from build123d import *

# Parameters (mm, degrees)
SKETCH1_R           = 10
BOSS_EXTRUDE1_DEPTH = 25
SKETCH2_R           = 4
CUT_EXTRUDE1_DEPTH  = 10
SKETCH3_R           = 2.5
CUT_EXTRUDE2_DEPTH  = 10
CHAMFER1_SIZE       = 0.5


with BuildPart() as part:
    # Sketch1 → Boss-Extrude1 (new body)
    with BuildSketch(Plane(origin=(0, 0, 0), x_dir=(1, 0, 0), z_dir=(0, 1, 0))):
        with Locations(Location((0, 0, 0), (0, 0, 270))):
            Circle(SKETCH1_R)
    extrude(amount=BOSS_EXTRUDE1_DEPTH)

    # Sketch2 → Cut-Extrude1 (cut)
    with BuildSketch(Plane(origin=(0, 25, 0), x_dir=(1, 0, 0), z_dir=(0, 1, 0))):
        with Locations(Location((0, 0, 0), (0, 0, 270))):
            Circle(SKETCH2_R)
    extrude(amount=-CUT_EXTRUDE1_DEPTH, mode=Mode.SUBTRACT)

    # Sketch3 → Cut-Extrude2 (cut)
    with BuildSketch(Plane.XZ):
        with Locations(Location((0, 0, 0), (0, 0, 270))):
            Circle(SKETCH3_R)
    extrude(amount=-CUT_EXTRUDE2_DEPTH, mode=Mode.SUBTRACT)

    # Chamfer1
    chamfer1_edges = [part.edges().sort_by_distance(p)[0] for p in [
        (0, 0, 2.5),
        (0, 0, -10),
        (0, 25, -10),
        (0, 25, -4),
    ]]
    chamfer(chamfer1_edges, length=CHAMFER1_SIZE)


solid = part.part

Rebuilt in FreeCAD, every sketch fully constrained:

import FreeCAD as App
import Part
import Sketcher

V = App.Vector
Q = App.Units.Quantity


def edges_at(feature, points):
    """Names of the edges that pass closest to the given points."""
    edges = feature.Shape.Edges
    near = lambda p: min(range(len(edges)), key=lambda i: edges[i].distToShape(Part.Vertex(*p))[0])
    return sorted({f"Edge{near(p) + 1}" for p in points})

doc = App.newDocument("Part")
body = doc.addObject("PartDesign::Body", "Body")

# Sketch on XZ plane
sketch1 = doc.addObject("Sketcher::SketchObject", "Sketch")
body.addObject(sketch1)
sketch1.AttachmentSupport = (doc.XZ_Plane, [""])
sketch1.MapMode = "FlatFace"
sketch1.addGeometry(Part.Circle(V(0, 0, 0), V(0, 0, 1), 10), False)
sketch1.addConstraint(Sketcher.Constraint("Coincident", 0, 3, -1, 1))
sketch1.addConstraint(Sketcher.Constraint("Diameter", 0, Q("20 mm")))
pad1 = doc.addObject("PartDesign::Pad", "Pad")
body.addObject(pad1)
pad1.Profile = sketch1
pad1.Length = 25
pad1.Reversed = True

# Sketch on XZ plane
sketch2 = doc.addObject("Sketcher::SketchObject", "Sketch001")
body.addObject(sketch2)
sketch2.AttachmentSupport = (doc.XZ_Plane, [""])
sketch2.MapMode = "FlatFace"
sketch2.AttachmentOffset = App.Placement(V(0, 0, -25), App.Rotation())
sketch2.addGeometry(Part.Circle(V(0, 0, 0), V(0, 0, 1), 4), False)
sketch2.addConstraint(Sketcher.Constraint("Coincident", 0, 3, -1, 1))
sketch2.addConstraint(Sketcher.Constraint("Diameter", 0, Q("8 mm")))
pocket1 = doc.addObject("PartDesign::Pocket", "Pocket")
body.addObject(pocket1)
pocket1.Profile = sketch2
pocket1.Length = 10
pocket1.Reversed = True

# Sketch on XZ plane
sketch3 = doc.addObject("Sketcher::SketchObject", "Sketch002")
body.addObject(sketch3)
sketch3.AttachmentSupport = (doc.XZ_Plane, [""])
sketch3.MapMode = "FlatFace"
sketch3.addGeometry(Part.Circle(V(0, 0, 0), V(0, 0, 1), 2.5), False)
sketch3.addConstraint(Sketcher.Constraint("Coincident", 0, 3, -1, 1))
sketch3.addConstraint(Sketcher.Constraint("Diameter", 0, Q("5 mm")))
pocket2 = doc.addObject("PartDesign::Pocket", "Pocket001")
body.addObject(pocket2)
pocket2.Profile = sketch3
pocket2.Length = 10
doc.recompute()

chamfer = doc.addObject("PartDesign::Chamfer", "Chamfer")
body.addObject(chamfer)
chamfer.Base = (pocket2, edges_at(pocket2, [
    (0, 0, 2.5),
    (0, 0, -10),
    (0, 25, -10),
    (0, 25, -4),
]))
chamfer.Size = 0.5

doc.recompute()
